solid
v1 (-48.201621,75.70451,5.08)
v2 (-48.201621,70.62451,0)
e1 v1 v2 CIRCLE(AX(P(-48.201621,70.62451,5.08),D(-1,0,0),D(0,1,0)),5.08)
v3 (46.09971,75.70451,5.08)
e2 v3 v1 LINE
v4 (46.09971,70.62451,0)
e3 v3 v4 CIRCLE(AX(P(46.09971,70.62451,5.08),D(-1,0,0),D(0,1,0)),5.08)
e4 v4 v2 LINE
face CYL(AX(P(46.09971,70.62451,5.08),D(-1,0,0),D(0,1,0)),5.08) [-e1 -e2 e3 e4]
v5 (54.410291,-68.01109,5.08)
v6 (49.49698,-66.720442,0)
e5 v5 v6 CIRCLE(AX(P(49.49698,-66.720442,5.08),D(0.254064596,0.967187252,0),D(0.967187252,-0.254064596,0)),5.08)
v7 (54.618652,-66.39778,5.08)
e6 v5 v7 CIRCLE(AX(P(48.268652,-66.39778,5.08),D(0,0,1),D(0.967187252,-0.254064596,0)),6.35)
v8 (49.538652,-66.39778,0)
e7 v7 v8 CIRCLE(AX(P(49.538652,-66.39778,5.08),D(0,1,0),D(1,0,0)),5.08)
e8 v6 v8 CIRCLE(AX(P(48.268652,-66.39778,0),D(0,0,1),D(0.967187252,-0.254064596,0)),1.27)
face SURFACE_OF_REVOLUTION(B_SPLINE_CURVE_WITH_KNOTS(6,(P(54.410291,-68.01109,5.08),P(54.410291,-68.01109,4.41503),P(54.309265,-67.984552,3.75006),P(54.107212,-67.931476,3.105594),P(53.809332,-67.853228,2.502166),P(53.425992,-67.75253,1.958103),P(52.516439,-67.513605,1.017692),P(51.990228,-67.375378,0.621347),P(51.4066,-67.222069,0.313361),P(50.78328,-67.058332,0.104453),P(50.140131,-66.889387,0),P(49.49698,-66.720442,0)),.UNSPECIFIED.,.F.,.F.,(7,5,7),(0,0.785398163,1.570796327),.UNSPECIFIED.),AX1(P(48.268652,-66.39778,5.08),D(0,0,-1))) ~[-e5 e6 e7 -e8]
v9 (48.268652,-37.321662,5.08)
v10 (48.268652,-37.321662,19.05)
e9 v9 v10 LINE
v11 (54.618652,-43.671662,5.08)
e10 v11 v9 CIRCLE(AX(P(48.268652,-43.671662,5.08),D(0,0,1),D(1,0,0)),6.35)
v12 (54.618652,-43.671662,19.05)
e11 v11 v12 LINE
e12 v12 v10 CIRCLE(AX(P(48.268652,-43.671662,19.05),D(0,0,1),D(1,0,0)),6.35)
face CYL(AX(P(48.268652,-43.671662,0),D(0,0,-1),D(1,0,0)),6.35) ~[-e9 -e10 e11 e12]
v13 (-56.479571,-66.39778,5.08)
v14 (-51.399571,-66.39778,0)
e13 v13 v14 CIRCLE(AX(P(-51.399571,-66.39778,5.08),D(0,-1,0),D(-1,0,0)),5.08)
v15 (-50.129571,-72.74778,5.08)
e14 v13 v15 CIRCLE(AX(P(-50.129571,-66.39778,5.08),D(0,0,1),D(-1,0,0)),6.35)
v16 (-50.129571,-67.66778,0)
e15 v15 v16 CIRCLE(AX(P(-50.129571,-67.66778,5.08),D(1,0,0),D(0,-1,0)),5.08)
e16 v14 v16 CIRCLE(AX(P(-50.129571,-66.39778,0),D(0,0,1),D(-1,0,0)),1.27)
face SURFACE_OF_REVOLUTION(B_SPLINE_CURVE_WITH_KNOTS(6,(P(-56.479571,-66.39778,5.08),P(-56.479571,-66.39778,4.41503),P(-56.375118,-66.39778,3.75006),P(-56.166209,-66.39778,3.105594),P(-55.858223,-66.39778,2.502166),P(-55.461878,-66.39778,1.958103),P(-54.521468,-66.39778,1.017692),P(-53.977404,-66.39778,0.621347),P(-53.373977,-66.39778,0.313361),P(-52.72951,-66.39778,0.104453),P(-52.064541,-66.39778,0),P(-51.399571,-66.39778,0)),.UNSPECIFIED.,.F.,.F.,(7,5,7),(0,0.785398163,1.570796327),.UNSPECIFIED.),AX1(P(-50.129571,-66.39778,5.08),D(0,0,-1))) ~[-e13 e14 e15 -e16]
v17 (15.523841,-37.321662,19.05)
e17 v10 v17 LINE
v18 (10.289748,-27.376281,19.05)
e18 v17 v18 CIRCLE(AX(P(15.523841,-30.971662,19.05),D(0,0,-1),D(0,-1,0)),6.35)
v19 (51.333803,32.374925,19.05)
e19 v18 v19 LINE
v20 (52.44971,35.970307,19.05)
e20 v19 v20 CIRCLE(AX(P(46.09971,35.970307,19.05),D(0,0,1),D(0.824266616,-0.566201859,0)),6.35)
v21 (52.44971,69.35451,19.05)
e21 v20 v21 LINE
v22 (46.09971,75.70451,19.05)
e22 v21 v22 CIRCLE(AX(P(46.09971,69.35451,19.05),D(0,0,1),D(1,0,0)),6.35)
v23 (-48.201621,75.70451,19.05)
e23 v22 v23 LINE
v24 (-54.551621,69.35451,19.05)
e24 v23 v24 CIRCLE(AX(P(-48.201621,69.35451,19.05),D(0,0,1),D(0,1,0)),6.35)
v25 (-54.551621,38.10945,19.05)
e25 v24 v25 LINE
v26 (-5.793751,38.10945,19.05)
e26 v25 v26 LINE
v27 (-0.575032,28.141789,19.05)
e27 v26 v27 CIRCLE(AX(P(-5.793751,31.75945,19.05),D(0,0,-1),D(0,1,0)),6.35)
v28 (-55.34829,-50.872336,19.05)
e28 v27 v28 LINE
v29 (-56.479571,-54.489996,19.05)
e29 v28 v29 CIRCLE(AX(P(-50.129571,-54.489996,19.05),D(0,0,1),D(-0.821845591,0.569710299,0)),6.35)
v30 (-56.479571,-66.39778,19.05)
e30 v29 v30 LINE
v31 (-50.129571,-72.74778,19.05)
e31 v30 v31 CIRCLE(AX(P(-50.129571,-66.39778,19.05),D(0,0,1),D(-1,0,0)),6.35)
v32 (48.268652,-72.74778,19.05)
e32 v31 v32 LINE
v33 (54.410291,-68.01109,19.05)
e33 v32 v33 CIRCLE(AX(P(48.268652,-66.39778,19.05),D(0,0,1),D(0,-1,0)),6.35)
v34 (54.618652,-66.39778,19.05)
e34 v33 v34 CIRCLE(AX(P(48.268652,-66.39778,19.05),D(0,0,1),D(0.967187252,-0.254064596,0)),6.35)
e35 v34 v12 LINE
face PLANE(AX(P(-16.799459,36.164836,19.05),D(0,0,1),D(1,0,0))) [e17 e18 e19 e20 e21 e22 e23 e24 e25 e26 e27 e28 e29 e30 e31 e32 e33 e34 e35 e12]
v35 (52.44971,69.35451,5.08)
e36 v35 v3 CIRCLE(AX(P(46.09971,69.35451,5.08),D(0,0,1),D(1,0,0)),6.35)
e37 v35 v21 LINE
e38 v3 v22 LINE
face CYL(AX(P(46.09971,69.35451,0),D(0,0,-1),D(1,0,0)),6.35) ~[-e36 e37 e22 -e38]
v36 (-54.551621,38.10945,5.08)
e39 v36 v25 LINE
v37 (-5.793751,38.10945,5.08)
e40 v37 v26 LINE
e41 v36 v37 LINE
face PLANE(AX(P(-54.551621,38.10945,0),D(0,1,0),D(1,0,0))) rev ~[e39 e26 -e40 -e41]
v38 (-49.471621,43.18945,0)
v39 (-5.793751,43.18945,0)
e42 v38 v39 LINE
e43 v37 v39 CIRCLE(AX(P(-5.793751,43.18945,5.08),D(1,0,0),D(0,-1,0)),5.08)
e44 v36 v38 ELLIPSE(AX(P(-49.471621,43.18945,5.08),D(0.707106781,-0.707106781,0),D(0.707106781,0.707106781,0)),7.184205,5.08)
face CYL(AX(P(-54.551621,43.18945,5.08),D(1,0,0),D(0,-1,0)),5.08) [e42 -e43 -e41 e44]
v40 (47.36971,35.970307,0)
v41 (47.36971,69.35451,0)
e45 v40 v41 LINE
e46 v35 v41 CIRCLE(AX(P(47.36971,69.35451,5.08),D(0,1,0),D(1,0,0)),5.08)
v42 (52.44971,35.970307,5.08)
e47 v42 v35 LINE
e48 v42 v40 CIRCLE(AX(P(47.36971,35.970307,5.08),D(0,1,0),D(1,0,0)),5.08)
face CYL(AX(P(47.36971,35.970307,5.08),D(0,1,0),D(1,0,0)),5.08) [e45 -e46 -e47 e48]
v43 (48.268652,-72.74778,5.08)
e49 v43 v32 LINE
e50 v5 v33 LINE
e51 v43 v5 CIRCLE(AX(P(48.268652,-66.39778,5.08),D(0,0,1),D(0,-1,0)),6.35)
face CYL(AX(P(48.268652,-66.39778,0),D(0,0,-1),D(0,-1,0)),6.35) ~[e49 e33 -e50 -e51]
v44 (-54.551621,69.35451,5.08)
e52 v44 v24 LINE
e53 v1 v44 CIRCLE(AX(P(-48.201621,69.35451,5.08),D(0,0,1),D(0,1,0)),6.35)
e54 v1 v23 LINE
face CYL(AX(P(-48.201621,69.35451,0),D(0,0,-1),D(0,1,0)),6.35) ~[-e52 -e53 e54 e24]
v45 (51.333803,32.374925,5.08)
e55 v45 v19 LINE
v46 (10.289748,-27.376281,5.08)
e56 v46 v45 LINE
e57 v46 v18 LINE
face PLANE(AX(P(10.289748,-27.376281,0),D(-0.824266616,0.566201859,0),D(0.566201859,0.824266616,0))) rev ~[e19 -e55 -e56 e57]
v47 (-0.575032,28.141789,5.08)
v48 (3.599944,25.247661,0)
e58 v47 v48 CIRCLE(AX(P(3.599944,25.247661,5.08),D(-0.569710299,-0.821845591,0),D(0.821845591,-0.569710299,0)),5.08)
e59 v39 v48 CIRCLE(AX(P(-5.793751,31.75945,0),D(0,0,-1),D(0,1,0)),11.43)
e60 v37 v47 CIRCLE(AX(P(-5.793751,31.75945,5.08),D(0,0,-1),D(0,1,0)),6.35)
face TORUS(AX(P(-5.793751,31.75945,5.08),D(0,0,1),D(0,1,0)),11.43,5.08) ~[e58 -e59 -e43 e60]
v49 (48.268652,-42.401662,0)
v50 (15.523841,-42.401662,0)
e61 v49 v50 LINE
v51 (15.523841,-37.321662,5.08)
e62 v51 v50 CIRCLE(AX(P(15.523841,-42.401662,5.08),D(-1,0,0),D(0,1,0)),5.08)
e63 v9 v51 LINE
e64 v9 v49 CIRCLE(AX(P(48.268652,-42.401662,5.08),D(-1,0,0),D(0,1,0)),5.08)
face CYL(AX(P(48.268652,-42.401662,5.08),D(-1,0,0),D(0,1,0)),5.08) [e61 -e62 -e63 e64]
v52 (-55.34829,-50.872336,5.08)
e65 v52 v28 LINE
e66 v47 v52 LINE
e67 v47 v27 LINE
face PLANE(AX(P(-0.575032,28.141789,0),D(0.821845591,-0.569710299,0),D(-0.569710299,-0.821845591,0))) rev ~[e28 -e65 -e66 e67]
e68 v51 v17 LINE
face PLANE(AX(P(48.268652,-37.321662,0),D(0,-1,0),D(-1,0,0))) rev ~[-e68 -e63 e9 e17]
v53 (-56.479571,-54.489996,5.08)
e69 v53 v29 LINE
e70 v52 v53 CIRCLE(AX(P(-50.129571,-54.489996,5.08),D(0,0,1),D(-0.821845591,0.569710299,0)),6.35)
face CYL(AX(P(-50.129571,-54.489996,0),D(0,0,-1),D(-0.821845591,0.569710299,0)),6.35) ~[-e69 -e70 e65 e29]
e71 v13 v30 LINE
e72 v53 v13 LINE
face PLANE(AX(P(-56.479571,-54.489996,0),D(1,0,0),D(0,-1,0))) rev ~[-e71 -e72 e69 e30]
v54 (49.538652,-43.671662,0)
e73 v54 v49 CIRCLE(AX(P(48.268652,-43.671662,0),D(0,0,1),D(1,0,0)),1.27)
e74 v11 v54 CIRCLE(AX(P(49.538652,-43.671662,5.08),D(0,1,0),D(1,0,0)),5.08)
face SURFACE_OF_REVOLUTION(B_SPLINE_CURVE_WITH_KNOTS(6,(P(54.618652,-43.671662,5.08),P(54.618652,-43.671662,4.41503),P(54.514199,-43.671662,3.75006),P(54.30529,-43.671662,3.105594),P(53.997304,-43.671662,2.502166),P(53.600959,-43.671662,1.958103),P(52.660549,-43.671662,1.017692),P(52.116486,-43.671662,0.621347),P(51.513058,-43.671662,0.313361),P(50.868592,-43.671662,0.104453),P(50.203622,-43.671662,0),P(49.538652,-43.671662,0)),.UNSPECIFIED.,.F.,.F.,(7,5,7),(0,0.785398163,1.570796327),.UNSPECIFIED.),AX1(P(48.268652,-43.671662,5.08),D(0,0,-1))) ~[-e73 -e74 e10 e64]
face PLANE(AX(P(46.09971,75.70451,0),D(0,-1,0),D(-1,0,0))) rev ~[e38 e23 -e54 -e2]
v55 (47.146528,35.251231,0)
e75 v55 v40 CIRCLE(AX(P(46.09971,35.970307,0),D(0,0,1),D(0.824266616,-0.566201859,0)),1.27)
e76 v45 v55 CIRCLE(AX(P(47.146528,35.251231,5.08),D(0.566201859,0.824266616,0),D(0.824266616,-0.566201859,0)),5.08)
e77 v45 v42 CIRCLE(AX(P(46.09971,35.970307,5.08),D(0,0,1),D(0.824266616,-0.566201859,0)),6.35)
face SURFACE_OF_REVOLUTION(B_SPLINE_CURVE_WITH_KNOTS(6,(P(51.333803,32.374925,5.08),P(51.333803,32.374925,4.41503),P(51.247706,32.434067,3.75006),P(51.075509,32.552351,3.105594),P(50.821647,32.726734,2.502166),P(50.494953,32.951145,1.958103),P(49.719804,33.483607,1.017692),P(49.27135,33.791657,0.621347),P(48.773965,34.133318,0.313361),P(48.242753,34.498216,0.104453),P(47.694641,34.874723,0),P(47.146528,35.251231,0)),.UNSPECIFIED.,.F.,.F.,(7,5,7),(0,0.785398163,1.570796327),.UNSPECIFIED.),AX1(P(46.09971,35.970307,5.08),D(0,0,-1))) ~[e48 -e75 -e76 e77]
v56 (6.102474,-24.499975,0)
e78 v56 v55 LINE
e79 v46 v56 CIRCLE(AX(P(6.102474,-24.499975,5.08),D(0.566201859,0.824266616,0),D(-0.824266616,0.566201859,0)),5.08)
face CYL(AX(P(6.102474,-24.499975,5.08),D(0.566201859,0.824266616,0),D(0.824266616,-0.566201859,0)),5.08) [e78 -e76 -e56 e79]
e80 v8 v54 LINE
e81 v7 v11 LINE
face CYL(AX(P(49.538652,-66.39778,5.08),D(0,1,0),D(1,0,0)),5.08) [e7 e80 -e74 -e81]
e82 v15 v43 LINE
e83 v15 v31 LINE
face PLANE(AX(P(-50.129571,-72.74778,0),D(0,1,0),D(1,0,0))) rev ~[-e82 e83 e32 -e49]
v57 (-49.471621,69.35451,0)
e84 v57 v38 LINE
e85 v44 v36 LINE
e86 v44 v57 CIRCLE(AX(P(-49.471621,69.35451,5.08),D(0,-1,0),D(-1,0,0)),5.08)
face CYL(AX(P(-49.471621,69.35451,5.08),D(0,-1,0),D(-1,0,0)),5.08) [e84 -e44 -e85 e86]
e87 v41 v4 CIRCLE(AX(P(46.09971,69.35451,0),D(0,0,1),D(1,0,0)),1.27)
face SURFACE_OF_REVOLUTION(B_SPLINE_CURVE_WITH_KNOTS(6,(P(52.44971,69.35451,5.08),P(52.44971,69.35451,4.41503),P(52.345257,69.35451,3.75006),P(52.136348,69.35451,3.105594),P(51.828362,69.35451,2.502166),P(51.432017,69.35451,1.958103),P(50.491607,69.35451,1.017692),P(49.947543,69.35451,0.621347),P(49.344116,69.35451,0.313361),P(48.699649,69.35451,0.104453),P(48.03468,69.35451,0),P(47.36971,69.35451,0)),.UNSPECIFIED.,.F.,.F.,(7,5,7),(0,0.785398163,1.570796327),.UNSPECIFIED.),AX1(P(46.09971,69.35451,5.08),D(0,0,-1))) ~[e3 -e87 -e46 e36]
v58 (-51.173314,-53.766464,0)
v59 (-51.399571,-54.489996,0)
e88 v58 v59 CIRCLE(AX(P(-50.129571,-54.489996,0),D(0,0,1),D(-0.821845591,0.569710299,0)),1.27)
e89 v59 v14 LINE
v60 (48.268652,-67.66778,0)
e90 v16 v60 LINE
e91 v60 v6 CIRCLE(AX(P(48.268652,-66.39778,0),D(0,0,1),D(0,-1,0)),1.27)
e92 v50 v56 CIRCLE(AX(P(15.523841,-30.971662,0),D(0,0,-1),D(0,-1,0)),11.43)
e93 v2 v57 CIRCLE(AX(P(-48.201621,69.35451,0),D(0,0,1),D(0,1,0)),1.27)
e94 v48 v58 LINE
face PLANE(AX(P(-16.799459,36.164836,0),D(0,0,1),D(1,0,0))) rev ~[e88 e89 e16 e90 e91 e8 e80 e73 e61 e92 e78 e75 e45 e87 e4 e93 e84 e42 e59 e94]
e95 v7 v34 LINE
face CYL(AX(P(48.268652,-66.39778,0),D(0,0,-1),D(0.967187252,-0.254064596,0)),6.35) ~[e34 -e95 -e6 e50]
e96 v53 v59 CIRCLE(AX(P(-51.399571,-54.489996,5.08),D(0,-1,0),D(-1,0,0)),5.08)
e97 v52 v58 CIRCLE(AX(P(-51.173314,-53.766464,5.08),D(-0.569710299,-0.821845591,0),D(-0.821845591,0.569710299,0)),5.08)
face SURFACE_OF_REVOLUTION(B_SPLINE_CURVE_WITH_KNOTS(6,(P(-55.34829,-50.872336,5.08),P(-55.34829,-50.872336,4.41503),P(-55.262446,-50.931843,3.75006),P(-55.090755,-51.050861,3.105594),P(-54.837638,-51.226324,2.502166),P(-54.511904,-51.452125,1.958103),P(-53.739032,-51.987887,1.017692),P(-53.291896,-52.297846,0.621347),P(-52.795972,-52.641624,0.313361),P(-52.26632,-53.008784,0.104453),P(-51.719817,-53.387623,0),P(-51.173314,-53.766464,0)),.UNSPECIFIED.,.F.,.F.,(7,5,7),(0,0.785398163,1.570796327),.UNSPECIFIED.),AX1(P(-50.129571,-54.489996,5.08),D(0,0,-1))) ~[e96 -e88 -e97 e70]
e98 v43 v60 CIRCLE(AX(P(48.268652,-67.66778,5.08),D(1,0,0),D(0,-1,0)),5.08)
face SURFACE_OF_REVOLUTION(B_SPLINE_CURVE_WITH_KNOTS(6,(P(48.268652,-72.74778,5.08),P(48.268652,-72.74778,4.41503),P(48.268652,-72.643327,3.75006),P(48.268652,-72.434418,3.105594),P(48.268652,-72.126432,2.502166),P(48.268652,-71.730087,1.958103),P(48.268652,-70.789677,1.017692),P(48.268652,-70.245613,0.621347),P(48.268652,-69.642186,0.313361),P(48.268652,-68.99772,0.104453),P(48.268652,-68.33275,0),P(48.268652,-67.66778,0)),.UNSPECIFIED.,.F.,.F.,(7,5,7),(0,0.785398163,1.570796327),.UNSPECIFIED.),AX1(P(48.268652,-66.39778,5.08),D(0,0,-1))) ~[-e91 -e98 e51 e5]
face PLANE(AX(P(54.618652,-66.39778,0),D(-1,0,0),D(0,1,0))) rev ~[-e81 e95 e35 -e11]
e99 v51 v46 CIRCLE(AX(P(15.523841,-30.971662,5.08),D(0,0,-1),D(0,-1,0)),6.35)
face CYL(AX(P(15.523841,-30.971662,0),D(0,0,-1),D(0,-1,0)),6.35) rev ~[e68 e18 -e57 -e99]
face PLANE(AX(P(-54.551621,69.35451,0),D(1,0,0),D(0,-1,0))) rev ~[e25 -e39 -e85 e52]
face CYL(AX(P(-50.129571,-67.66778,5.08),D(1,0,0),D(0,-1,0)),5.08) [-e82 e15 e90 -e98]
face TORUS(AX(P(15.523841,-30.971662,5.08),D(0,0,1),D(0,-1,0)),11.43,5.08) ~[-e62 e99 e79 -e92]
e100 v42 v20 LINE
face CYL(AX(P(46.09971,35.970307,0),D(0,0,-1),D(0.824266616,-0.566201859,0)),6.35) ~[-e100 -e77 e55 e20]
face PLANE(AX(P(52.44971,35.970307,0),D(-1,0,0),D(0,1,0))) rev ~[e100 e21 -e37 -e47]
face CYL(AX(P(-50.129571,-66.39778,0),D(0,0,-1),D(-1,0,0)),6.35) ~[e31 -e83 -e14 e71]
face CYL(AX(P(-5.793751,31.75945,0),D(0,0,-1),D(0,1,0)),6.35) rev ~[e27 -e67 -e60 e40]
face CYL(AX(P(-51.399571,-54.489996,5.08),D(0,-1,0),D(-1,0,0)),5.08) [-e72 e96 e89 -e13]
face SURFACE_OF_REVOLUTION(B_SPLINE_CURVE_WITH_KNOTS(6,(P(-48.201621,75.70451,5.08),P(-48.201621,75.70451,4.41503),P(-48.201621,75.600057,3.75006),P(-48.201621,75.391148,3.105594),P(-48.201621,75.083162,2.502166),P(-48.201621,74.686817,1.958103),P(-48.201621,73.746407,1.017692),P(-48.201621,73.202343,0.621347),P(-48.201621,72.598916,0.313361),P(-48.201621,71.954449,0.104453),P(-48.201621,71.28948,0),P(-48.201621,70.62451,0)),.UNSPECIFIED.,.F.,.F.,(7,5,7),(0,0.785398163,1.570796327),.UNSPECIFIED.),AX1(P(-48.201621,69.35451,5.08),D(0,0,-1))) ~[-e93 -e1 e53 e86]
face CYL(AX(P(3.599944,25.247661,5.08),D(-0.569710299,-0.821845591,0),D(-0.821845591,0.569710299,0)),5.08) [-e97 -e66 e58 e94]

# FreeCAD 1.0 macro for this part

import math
import FreeCAD as App
import Part
import Sketcher

V = App.Vector
Q = App.Units.Quantity


def edges_at(feature, points):
    """Names of the edges that pass closest to the given points."""
    edges = feature.Shape.Edges
    near = lambda p: min(range(len(edges)), key=lambda i: edges[i].distToShape(Part.Vertex(*p))[0])
    return sorted({f"Edge{near(p) + 1}" for p in points})

doc = App.newDocument("Part")
body = doc.addObject("PartDesign::Body", "Body")

# Sketch on XY plane
sketch1 = doc.addObject("Sketcher::SketchObject", "Sketch")
body.addObject(sketch1)
sketch1.AttachmentSupport = (doc.XY_Plane, [""])
sketch1.MapMode = "FlatFace"
sketch1.addGeometry(Part.LineSegment(V(-54.6, 38.1, 0), V(-5.8, 38.1, 0)), False)
sketch1.addGeometry(Part.ArcOfCircle(Part.Circle(V(-5.8, 31.8, 0), V(0, 0, 1), 6.3), math.radians(-35), math.radians(90)), False)
sketch1.addGeometry(Part.LineSegment(V(-0.6, 28.1, 0), V(-55.3, -50.9, 0)), False)
sketch1.addGeometry(Part.ArcOfCircle(Part.Circle(V(-50.1, -54.5, 0), V(0, 0, 1), 6.3), math.radians(145), math.radians(180)), False)
sketch1.addGeometry(Part.LineSegment(V(-56.5, -54.5, 0), V(-56.5, -66.4, 0)), False)
sketch1.addGeometry(Part.ArcOfCircle(Part.Circle(V(-50.1, -66.4, 0), V(0, 0, 1), 6.3), math.radians(180), math.radians(270)), False)
sketch1.addGeometry(Part.LineSegment(V(-50.1, -72.7, 0), V(48.3, -72.7, 0)), False)
sketch1.addGeometry(Part.ArcOfCircle(Part.Circle(V(48.3, -66.4, 0), V(0, 0, 1), 6.3), math.radians(-90), math.radians(-15)), False)
sketch1.addGeometry(Part.ArcOfCircle(Part.Circle(V(48.3, -66.4, 0), V(0, 0, 1), 6.3), math.radians(-14.72), math.radians(0)), False)
sketch1.addGeometry(Part.LineSegment(V(54.6, -66.4, 0), V(54.6, -43.7, 0)), False)
sketch1.addGeometry(Part.ArcOfCircle(Part.Circle(V(48.3, -43.7, 0), V(0, 0, 1), 6.3), math.radians(0), math.radians(90)), False)
sketch1.addGeometry(Part.LineSegment(V(48.3, -37.3, 0), V(15.5, -37.3, 0)), False)
sketch1.addGeometry(Part.ArcOfCircle(Part.Circle(V(15.5, -31, 0), V(0, 0, 1), 6.3), math.radians(146), math.radians(270)), False)
sketch1.addGeometry(Part.LineSegment(V(10.3, -27.4, 0), V(51.3, 32.4, 0)), False)
sketch1.addGeometry(Part.ArcOfCircle(Part.Circle(V(46.1, 36, 0), V(0, 0, 1), 6.3), math.radians(-34), math.radians(0)), False)
sketch1.addGeometry(Part.LineSegment(V(52.4, 36, 0), V(52.4, 69.4, 0)), False)
sketch1.addGeometry(Part.ArcOfCircle(Part.Circle(V(46.1, 69.4, 0), V(0, 0, 1), 6.3), math.radians(0), math.radians(90)), False)
sketch1.addGeometry(Part.LineSegment(V(46.1, 75.7, 0), V(-48.2, 75.7, 0)), False)
sketch1.addGeometry(Part.ArcOfCircle(Part.Circle(V(-48.2, 69.4, 0), V(0, 0, 1), 6.3), math.radians(90), math.radians(180)), False)
sketch1.addGeometry(Part.LineSegment(V(-54.6, 69.4, 0), V(-54.6, 38.1, 0)), False)
sketch1.addConstraint(Sketcher.Constraint("Tangent", 0, 2, 1, 2))
sketch1.addConstraint(Sketcher.Constraint("Tangent", 1, 1, 2, 1))
sketch1.addConstraint(Sketcher.Constraint("Tangent", 2, 2, 3, 1))
sketch1.addConstraint(Sketcher.Constraint("Tangent", 3, 2, 4, 1))
sketch1.addConstraint(Sketcher.Constraint("Tangent", 4, 2, 5, 1))
sketch1.addConstraint(Sketcher.Constraint("Tangent", 5, 2, 6, 1))
sketch1.addConstraint(Sketcher.Constraint("Tangent", 6, 2, 7, 1))
sketch1.addConstraint(Sketcher.Constraint("Tangent", 7, 2, 8, 1))
sketch1.addConstraint(Sketcher.Constraint("Tangent", 8, 2, 9, 1))
sketch1.addConstraint(Sketcher.Constraint("Tangent", 9, 2, 10, 1))
sketch1.addConstraint(Sketcher.Constraint("Tangent", 10, 2, 11, 1))
sketch1.addConstraint(Sketcher.Constraint("Tangent", 11, 2, 12, 2))
sketch1.addConstraint(Sketcher.Constraint("Tangent", 12, 1, 13, 1))
sketch1.addConstraint(Sketcher.Constraint("Tangent", 13, 2, 14, 1))
sketch1.addConstraint(Sketcher.Constraint("Tangent", 14, 2, 15, 1))
sketch1.addConstraint(Sketcher.Constraint("Tangent", 15, 2, 16, 1))
sketch1.addConstraint(Sketcher.Constraint("Tangent", 16, 2, 17, 1))
sketch1.addConstraint(Sketcher.Constraint("Tangent", 17, 2, 18, 1))
sketch1.addConstraint(Sketcher.Constraint("Tangent", 18, 2, 19, 1))
sketch1.addConstraint(Sketcher.Constraint("Coincident", 19, 2, 0, 1))
sketch1.addConstraint(Sketcher.Constraint("Horizontal", 0))
sketch1.addConstraint(Sketcher.Constraint("Vertical", 4))
sketch1.addConstraint(Sketcher.Constraint("Horizontal", 6))
sketch1.addConstraint(Sketcher.Constraint("Vertical", 9))
sketch1.addConstraint(Sketcher.Constraint("Horizontal", 11))
sketch1.addConstraint(Sketcher.Constraint("Vertical", 15))
sketch1.addConstraint(Sketcher.Constraint("Horizontal", 17))
sketch1.addConstraint(Sketcher.Constraint("Vertical", 19))
sketch1.addConstraint(Sketcher.Constraint("Equal", 1, 3))
sketch1.addConstraint(Sketcher.Constraint("Equal", 3, 5))
sketch1.addConstraint(Sketcher.Constraint("Equal", 5, 7))
sketch1.addConstraint(Sketcher.Constraint("Equal", 7, 8))
sketch1.addConstraint(Sketcher.Constraint("Equal", 8, 10))
sketch1.addConstraint(Sketcher.Constraint("Equal", 10, 12))
sketch1.addConstraint(Sketcher.Constraint("Equal", 12, 14))
sketch1.addConstraint(Sketcher.Constraint("Equal", 14, 16))
sketch1.addConstraint(Sketcher.Constraint("Equal", 16, 18))
sketch1.addConstraint(Sketcher.Constraint("Radius", 1, Q("0.25 in")))
sketch1.addConstraint(Sketcher.Constraint("Distance", 2, Q("96.1423 mm")))
sketch1.addConstraint(Sketcher.Constraint("DistanceX", 0, 1, 0, 2, Q("48.75787 mm")))
sketch1.addConstraint(Sketcher.Constraint("DistanceX", 11, 2, 11, 1, Q("32.744811 mm")))
sketch1.addConstraint(Sketcher.Constraint("DistanceX", 17, 2, 17, 1, Q("94.301331 mm")))
sketch1.addConstraint(Sketcher.Constraint("DistanceY", 19, 2, 19, 1, Q("31.24506 mm")))
sketch1.addConstraint(Sketcher.Constraint("DistanceX", 6, 1, 6, 2, Q("98.398222 mm")))
sketch1.addConstraint(Sketcher.Constraint("DistanceY", 4, 2, 4, 1, Q("11.907784 mm")))
sketch1.addConstraint(Sketcher.Constraint("DistanceY", 9, 1, 9, 2, Q("22.726117 mm")))
sketch1.addConstraint(Sketcher.Constraint("DistanceY", 15, 1, 15, 2, Q("33.384202 mm")))
sketch1.addConstraint(Sketcher.Constraint("DistanceX", 1, 3, -1, 1, Q("5.793751 mm")))
sketch1.addConstraint(Sketcher.Constraint("DistanceY", -1, 1, 1, 3, Q("31.75945 mm")))
sketch1.addConstraint(Sketcher.Constraint("DistanceX", 3, 3, -1, 1, Q("50.129571 mm")))
sketch1.addConstraint(Sketcher.Constraint("DistanceX", -1, 1, 7, 2, Q("54.410291 mm")))
pad1 = doc.addObject("PartDesign::Pad", "Pad")
body.addObject(pad1)
pad1.Profile = sketch1
pad1.Length = Q("0.75 in")
doc.recompute()

fillet = doc.addObject("PartDesign::Fillet", "Fillet")
body.addObject(fillet)
fillet.Base = (pad1, edges_at(pad1, [
    (-30.173, 38.109, 0),
    (-0.168, 34.705, 0),
    (-27.962, -11.365, 0),
    (-56.19, -52.595, 0),
    (-56.48, -60.444, 0),
    (-54.62, -70.888, 0),
    (-0.93, -72.748, 0),
    (52.147, -71.426, 0),
    (54.619, -55.035, 0),
    (52.759, -39.182, 0),
    (31.896, -37.322, 0),
    (9.905, -33.929, 0),
    (30.812, 2.499, 0),
    (52.164, 34.088, 0),
    (52.45, 52.662, 0),
    (50.59, 73.845, 0),
    (-1.051, 75.705, 0),
    (-52.692, 73.845, 0),
    (-54.552, 53.732, 0),
]))
fillet.Radius = Q("0.2 in")

doc.recompute()
